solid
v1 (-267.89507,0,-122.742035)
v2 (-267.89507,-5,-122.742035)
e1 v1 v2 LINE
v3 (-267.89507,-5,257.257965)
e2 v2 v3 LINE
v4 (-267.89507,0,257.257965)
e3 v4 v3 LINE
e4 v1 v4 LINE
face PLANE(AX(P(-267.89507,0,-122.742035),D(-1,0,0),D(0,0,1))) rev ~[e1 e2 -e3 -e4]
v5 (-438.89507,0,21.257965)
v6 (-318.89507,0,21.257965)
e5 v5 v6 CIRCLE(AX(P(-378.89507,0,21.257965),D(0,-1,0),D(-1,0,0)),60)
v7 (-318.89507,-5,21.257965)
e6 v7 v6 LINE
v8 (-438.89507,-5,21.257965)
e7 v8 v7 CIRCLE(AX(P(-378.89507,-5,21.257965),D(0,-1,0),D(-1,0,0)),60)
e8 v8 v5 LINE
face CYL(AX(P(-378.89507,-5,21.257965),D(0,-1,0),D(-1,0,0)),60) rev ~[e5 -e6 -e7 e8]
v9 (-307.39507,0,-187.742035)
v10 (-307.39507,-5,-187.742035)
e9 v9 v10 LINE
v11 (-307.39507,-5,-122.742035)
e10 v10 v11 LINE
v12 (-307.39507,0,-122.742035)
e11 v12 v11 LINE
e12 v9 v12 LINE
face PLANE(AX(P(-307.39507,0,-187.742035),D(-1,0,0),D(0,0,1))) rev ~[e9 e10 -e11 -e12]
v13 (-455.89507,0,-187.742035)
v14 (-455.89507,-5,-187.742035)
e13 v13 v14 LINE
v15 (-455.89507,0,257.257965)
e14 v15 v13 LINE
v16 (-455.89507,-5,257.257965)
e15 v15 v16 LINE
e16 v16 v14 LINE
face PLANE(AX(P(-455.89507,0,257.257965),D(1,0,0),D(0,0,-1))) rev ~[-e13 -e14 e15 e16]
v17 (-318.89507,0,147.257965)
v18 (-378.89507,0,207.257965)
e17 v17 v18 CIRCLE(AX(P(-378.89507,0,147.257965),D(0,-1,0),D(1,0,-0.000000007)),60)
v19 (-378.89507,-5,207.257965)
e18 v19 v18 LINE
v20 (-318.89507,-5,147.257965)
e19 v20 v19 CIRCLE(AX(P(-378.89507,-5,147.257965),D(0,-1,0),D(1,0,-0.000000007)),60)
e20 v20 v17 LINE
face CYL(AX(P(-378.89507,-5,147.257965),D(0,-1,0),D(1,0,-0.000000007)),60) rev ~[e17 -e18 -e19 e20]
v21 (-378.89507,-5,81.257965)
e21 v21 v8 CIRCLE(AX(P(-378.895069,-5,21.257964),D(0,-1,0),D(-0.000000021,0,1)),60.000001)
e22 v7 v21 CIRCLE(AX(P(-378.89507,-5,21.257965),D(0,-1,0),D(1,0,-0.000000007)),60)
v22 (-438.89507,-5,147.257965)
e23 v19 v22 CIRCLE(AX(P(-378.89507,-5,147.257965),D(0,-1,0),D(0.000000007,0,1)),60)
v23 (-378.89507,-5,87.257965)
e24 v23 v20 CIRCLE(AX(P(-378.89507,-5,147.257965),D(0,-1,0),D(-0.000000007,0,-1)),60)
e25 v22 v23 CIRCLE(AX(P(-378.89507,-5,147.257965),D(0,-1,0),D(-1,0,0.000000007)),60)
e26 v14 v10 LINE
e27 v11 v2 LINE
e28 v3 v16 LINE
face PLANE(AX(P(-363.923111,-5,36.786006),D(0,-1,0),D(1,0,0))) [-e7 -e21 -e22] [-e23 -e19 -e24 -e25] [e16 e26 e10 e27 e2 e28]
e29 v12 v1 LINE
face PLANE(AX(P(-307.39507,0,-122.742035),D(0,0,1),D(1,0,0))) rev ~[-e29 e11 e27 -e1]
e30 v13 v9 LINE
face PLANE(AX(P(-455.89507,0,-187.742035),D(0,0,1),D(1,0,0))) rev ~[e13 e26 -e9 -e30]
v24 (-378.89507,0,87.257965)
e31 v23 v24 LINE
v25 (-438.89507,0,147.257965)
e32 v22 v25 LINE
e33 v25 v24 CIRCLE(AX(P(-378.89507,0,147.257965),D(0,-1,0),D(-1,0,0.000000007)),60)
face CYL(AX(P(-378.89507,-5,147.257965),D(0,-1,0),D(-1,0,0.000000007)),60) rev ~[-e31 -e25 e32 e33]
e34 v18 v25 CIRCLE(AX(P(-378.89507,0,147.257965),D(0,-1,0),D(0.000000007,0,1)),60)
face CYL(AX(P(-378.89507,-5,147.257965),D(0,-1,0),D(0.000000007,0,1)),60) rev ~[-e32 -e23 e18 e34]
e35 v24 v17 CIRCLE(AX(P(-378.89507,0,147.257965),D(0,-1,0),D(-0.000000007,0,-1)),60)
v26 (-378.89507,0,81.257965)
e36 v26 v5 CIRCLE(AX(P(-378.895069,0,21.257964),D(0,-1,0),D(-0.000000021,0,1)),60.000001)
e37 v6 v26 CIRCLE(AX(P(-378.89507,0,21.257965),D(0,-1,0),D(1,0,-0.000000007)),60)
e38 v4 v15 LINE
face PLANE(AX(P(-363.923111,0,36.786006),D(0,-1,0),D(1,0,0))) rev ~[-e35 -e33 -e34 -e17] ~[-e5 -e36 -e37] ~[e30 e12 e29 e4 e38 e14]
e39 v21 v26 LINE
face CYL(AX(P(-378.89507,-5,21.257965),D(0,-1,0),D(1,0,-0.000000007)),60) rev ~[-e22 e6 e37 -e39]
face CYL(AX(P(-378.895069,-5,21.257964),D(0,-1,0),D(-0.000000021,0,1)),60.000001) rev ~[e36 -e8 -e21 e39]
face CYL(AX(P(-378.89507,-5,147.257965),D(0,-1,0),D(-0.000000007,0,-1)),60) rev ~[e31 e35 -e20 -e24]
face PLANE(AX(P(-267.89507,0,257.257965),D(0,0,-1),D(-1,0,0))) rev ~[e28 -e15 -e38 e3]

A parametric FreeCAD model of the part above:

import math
import FreeCAD as App
import Part
import Sketcher


def add_polygon(sketch, points):
    """Adds a closed chain of lines whose ends are joined by coincident constraints."""
    first, n = sketch.GeometryCount, len(points)
    for a, b in zip(points, points[1:] + points[:1]):
        sketch.addGeometry(Part.LineSegment(App.Vector(*a, 0), App.Vector(*b, 0)), False)
    for i in range(n):
        sketch.addConstraint(Sketcher.Constraint("Coincident", first + i, 2, first + (i + 1) % n, 1))

doc = App.newDocument("Part")
body = doc.addObject("PartDesign::Body", "Body")

sketch1 = body.newObject("Sketcher::SketchObject", "Sketch")
sketch1.AttachmentSupport = (doc.getObject("XZ_Plane"), [""])
sketch1.MapMode = "FlatFace"
add_polygon(sketch1, [(-267.89507, 257.257965), (-455.89507, 257.257965), (-455.89507, -187.742035), (-307.39507, -187.742035), (-307.39507, -122.742035), (-267.89507, -122.742035)])
sketch1.addConstraint([
    Sketcher.Constraint("Horizontal", 0),
    Sketcher.Constraint("Vertical", 1),
    Sketcher.Constraint("Horizontal", 2),
    Sketcher.Constraint("Vertical", 3),
    Sketcher.Constraint("Horizontal", 4),
    Sketcher.Constraint("Vertical", 5),
    Sketcher.Constraint("DistanceX", 0, 2, 0, 1, 188.0),
    Sketcher.Constraint("DistanceY", 1, 2, 1, 1, 445.0),
    Sketcher.Constraint("DistanceY", 3, 1, 3, 2, 65.0),
    Sketcher.Constraint("DistanceX", 2, 1, 2, 2, 148.5),
    Sketcher.Constraint("DistanceX", 0, 2, -1, 1, 455.89507),
    Sketcher.Constraint("DistanceY", -1, 1, 0, 2, 257.257965),
])
pad1 = body.newObject("PartDesign::Pad", "Pad")
pad1.Profile = sketch1
pad1.Length = 5

sketch2 = body.newObject("Sketcher::SketchObject", "Sketch001")
sketch2.AttachmentSupport = (doc.getObject("XZ_Plane"), [""])
sketch2.MapMode = "FlatFace"
sketch2.AttachmentOffset = App.Placement(App.Vector(0, 0, 5), App.Rotation())
sketch2.addGeometry([
    Part.ArcOfCircle(Part.Circle(App.Vector(-378.895069, 21.257964, 0), App.Vector(0, 0, 1), 60.000001), math.radians(90.000001), math.radians(179.999999)),
    Part.ArcOfCircle(Part.Circle(App.Vector(-378.89507, 21.257965, 0), App.Vector(0, 0, 1), 60), math.radians(180), math.radians(360)),
    Part.ArcOfCircle(Part.Circle(App.Vector(-378.89507, 21.257965, 0), App.Vector(0, 0, 1), 60), math.radians(0), math.radians(90)),
    Part.ArcOfCircle(Part.Circle(App.Vector(-378.89507, 147.257965, 0), App.Vector(0, 0, 1), 60), math.radians(0), math.radians(90)),
    Part.ArcOfCircle(Part.Circle(App.Vector(-378.89507, 147.257965, 0), App.Vector(0, 0, 1), 60), math.radians(90), math.radians(180)),
    Part.ArcOfCircle(Part.Circle(App.Vector(-378.89507, 147.257965, 0), App.Vector(0, 0, 1), 60), math.radians(180), math.radians(270)),
    Part.ArcOfCircle(Part.Circle(App.Vector(-378.89507, 147.257965, 0), App.Vector(0, 0, 1), 60), math.radians(-90), math.radians(0)),
], False)
sketch2.addConstraint([
    Sketcher.Constraint("Tangent", 0, 2, 1, 1),
    Sketcher.Constraint("Tangent", 1, 2, 2, 1),
    Sketcher.Constraint("Tangent", 2, 2, 0, 1),
    Sketcher.Constraint("Tangent", 3, 2, 4, 1),
    Sketcher.Constraint("Tangent", 4, 2, 5, 1),
    Sketcher.Constraint("Tangent", 5, 2, 6, 1),
    Sketcher.Constraint("Tangent", 6, 2, 3, 1),
    Sketcher.Constraint("Equal", 2, 3),
    Sketcher.Constraint("Equal", 3, 4),
    Sketcher.Constraint("Horizontal", 2, 3, 0, 2),
    Sketcher.Constraint("Horizontal", 0, 2, 1, 2),
    Sketcher.Constraint("Horizontal", 6, 3, 4, 2),
    Sketcher.Constraint("Horizontal", 4, 2, 6, 2),
    Sketcher.Constraint("Vertical", 2, 3, 3, 3),
    Sketcher.Constraint("Vertical", 6, 3, 2, 2),
    Sketcher.Constraint("Vertical", 2, 2, 3, 2),
    Sketcher.Constraint("Vertical", 3, 2, 5, 2),
    Sketcher.Constraint("Radius", 0, 60.000001),
    Sketcher.Constraint("DistanceY", 2, 3, 3, 3, 126.0),
    Sketcher.Constraint("DistanceX", 0, 3, -1, 1, 378.895069),
    Sketcher.Constraint("DistanceY", -1, 1, 0, 3, 21.257964),
])
pocket1 = body.newObject("PartDesign::Pocket", "Pocket")
pocket1.Profile = sketch2
pocket1.Type = "ThroughAll"

doc.recompute()
